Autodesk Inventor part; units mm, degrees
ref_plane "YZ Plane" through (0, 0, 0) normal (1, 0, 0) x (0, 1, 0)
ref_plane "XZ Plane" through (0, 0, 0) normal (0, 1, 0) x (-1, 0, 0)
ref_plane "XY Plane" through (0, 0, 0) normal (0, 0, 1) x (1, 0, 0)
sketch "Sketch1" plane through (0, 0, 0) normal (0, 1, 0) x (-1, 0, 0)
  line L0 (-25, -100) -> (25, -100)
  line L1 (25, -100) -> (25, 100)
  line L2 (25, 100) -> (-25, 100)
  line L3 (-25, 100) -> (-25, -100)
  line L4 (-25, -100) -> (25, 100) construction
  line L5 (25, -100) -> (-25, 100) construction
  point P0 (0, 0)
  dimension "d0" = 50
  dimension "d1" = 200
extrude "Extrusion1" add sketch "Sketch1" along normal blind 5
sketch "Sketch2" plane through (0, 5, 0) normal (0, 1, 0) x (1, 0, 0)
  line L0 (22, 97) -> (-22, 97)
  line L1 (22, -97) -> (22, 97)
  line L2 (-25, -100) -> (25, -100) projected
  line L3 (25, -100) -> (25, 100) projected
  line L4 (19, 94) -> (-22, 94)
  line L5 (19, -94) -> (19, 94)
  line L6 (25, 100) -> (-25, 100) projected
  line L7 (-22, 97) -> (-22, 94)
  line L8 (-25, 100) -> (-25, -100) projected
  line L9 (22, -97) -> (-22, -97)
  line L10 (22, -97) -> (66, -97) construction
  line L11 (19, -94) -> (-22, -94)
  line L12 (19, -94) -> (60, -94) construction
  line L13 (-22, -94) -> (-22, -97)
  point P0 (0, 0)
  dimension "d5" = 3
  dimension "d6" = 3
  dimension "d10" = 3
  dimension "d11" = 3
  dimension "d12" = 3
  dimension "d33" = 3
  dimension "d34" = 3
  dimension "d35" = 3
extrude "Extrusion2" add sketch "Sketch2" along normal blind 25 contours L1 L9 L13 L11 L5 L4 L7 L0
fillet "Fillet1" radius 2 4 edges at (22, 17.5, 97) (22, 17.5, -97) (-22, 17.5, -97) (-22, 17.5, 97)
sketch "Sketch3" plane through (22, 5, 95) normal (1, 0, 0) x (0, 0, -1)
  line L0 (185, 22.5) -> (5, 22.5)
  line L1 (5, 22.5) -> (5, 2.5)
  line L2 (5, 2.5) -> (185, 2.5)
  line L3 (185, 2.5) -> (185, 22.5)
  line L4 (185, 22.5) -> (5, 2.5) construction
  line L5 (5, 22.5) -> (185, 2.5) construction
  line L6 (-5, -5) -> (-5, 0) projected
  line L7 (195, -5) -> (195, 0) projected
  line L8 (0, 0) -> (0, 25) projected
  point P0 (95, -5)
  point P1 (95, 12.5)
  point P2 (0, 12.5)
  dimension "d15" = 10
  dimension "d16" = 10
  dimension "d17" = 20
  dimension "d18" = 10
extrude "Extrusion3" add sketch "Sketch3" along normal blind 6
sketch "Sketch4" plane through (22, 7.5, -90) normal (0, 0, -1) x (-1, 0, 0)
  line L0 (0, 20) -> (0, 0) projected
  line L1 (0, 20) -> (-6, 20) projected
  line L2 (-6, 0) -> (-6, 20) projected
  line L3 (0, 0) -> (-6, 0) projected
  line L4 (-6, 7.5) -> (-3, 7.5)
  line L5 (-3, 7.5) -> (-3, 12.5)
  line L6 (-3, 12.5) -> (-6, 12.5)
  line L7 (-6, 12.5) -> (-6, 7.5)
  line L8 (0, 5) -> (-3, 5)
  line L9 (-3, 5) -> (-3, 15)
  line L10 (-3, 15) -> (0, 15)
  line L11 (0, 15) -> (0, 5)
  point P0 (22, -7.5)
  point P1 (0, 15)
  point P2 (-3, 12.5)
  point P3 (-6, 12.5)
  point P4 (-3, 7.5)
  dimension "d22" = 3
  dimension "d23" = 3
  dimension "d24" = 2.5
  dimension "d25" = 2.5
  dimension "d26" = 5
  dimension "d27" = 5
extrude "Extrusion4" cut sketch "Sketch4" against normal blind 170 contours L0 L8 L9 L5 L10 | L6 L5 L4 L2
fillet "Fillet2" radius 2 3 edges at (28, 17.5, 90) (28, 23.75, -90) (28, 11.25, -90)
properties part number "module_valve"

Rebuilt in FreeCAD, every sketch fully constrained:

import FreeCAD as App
import Part
import Sketcher


def edges_at(feature, points):
    """Names of the edges that pass closest to the given points."""
    edges = feature.Shape.Edges
    near = lambda p: min(range(len(edges)), key=lambda i: edges[i].distToShape(Part.Vertex(*p))[0])
    return sorted({f"Edge{near(p) + 1}" for p in points})


def add_polygon(sketch, points):
    """Adds a closed chain of lines whose ends are joined by coincident constraints."""
    first, n = sketch.GeometryCount, len(points)
    for a, b in zip(points, points[1:] + points[:1]):
        sketch.addGeometry(Part.LineSegment(App.Vector(*a, 0), App.Vector(*b, 0)), False)
    for i in range(n):
        sketch.addConstraint(Sketcher.Constraint("Coincident", first + i, 2, first + (i + 1) % n, 1))

doc = App.newDocument("Part")
body = doc.addObject("PartDesign::Body", "Body")

sketch1 = body.newObject("Sketcher::SketchObject", "Sketch")
sketch1.AttachmentSupport = (doc.getObject("XZ_Plane"), [""])
sketch1.MapMode = "FlatFace"
add_polygon(sketch1, [(25, 100), (25, -100), (-25, -100), (-25, 100)])
sketch1.addConstraint([
    Sketcher.Constraint("Vertical", 0),
    Sketcher.Constraint("Horizontal", 1),
    Sketcher.Constraint("Vertical", 2),
    Sketcher.Constraint("Horizontal", 3),
    Sketcher.Constraint("Symmetric", 0, 2, 2, 2, -1, 1),
    Sketcher.Constraint("DistanceX", 1, 2, 1, 1, 50.0),
    Sketcher.Constraint("DistanceY", 0, 2, 0, 1, 200.0),
])
pad1 = body.newObject("PartDesign::Pad", "Pad")
pad1.Profile = sketch1
pad1.Length = 5
pad1.Reversed = True

sketch2 = body.newObject("Sketcher::SketchObject", "Sketch001")
sketch2.AttachmentSupport = (doc.getObject("XZ_Plane"), [""])
sketch2.MapMode = "FlatFace"
sketch2.AttachmentOffset = App.Placement(App.Vector(0, 0, -5), App.Rotation())
add_polygon(sketch2, [(22, 97), (22, -97), (-22, -97), (-22, -94), (19, -94), (19, 94), (-22, 94), (-22, 97)])
sketch2.addConstraint([
    Sketcher.Constraint("Vertical", 0),
    Sketcher.Constraint("Horizontal", 1),
    Sketcher.Constraint("Vertical", 2),
    Sketcher.Constraint("Horizontal", 3),
    Sketcher.Constraint("Vertical", 4),
    Sketcher.Constraint("Horizontal", 5),
    Sketcher.Constraint("Vertical", 6),
    Sketcher.Constraint("Horizontal", 7),
    Sketcher.Constraint("Symmetric", 0, 2, 6, 2, -1, 1),
    Sketcher.Constraint("Symmetric", 2, 2, 5, 2, -1),
    Sketcher.Constraint("DistanceY", 2, 1, 2, 2, 3.0),
    Sketcher.Constraint("DistanceX", 3, 2, 0, 2, 3.0),
    Sketcher.Constraint("DistanceX", 1, 2, 1, 1, 44.0),
    Sketcher.Constraint("DistanceY", 0, 2, 0, 1, 194.0),
])
pad2 = body.newObject("PartDesign::Pad", "Pad001")
pad2.Profile = sketch2
pad2.Length = 25
pad2.Reversed = True
doc.recompute()

fillet = body.newObject("PartDesign::Fillet", "Fillet")
fillet.Base = (pad2, edges_at(pad2, [
    (22, 17.5, 97),
    (22, 17.5, -97),
    (-22, 17.5, -97),
    (-22, 17.5, 97),
]))
fillet.Radius = 2

sketch3 = body.newObject("Sketcher::SketchObject", "Sketch002")
sketch3.AttachmentSupport = (doc.getObject("YZ_Plane"), [""])
sketch3.MapMode = "FlatFace"
sketch3.AttachmentOffset = App.Placement(App.Vector(0, 0, 22), App.Rotation())
add_polygon(sketch3, [(8, -90), (28, -90), (28, 90), (8, 90)])
sketch3.addConstraint([
    Sketcher.Constraint("Horizontal", 0),
    Sketcher.Constraint("Vertical", 1),
    Sketcher.Constraint("Horizontal", 2),
    Sketcher.Constraint("Vertical", 3),
    Sketcher.Constraint("DistanceX", 0, 1, 0, 2, 20.0),
    Sketcher.Constraint("DistanceY", 1, 1, 1, 2, 180.0),
    Sketcher.Constraint("DistanceY", 0, 2, -1, 1, 90.0),
    Sketcher.Constraint("DistanceX", -1, 1, 0, 2, 27.5),
])
pad3 = body.newObject("PartDesign::Pad", "Pad002")
pad3.Profile = sketch3
pad3.Length = 6

sketch4 = body.newObject("Sketcher::SketchObject", "Sketch003")
sketch4.AttachmentSupport = (doc.getObject("XY_Plane"), [""])
sketch4.MapMode = "FlatFace"
sketch4.AttachmentOffset = App.Placement(App.Vector(0, 0, -90), App.Rotation())
add_polygon(sketch4, [(22, 12.5), (22, 22.5), (25, 22.5), (25, 20), (28, 20), (28, 15), (25, 15), (25, 12.5)])
sketch4.addConstraint([
    Sketcher.Constraint("Vertical", 0),
    Sketcher.Constraint("Horizontal", 1),
    Sketcher.Constraint("Vertical", 2),
    Sketcher.Constraint("Horizontal", 3),
    Sketcher.Constraint("Vertical", 4),
    Sketcher.Constraint("Horizontal", 5),
    Sketcher.Constraint("Vertical", 6),
    Sketcher.Constraint("Horizontal", 7),
    Sketcher.Constraint("Vertical", 2, 2, 5, 2),
    Sketcher.Constraint("Equal", 1, 3),
    Sketcher.Constraint("Equal", 2, 6),
    Sketcher.Constraint("DistanceX", 1, 1, 1, 2, 3.0),
    Sketcher.Constraint("DistanceY", 4, 2, 4, 1, 5.0),
    Sketcher.Constraint("DistanceY", 2, 2, 2, 1, 2.5),
    Sketcher.Constraint("DistanceX", -1, 1, 0, 2, 22.0),
    Sketcher.Constraint("DistanceY", -1, 1, 2, 2, 20.0),
])
pocket1 = body.newObject("PartDesign::Pocket", "Pocket")
pocket1.Profile = sketch4
pocket1.Length = 170
pocket1.Reversed = True
doc.recompute()

fillet2 = body.newObject("PartDesign::Fillet", "Fillet001")
fillet2.Base = (pocket1, edges_at(pocket1, [(28, 17.5, 90), (28, 23.75, -90), (28, 11.25, -90)]))
fillet2.Radius = 2

doc.recompute()
